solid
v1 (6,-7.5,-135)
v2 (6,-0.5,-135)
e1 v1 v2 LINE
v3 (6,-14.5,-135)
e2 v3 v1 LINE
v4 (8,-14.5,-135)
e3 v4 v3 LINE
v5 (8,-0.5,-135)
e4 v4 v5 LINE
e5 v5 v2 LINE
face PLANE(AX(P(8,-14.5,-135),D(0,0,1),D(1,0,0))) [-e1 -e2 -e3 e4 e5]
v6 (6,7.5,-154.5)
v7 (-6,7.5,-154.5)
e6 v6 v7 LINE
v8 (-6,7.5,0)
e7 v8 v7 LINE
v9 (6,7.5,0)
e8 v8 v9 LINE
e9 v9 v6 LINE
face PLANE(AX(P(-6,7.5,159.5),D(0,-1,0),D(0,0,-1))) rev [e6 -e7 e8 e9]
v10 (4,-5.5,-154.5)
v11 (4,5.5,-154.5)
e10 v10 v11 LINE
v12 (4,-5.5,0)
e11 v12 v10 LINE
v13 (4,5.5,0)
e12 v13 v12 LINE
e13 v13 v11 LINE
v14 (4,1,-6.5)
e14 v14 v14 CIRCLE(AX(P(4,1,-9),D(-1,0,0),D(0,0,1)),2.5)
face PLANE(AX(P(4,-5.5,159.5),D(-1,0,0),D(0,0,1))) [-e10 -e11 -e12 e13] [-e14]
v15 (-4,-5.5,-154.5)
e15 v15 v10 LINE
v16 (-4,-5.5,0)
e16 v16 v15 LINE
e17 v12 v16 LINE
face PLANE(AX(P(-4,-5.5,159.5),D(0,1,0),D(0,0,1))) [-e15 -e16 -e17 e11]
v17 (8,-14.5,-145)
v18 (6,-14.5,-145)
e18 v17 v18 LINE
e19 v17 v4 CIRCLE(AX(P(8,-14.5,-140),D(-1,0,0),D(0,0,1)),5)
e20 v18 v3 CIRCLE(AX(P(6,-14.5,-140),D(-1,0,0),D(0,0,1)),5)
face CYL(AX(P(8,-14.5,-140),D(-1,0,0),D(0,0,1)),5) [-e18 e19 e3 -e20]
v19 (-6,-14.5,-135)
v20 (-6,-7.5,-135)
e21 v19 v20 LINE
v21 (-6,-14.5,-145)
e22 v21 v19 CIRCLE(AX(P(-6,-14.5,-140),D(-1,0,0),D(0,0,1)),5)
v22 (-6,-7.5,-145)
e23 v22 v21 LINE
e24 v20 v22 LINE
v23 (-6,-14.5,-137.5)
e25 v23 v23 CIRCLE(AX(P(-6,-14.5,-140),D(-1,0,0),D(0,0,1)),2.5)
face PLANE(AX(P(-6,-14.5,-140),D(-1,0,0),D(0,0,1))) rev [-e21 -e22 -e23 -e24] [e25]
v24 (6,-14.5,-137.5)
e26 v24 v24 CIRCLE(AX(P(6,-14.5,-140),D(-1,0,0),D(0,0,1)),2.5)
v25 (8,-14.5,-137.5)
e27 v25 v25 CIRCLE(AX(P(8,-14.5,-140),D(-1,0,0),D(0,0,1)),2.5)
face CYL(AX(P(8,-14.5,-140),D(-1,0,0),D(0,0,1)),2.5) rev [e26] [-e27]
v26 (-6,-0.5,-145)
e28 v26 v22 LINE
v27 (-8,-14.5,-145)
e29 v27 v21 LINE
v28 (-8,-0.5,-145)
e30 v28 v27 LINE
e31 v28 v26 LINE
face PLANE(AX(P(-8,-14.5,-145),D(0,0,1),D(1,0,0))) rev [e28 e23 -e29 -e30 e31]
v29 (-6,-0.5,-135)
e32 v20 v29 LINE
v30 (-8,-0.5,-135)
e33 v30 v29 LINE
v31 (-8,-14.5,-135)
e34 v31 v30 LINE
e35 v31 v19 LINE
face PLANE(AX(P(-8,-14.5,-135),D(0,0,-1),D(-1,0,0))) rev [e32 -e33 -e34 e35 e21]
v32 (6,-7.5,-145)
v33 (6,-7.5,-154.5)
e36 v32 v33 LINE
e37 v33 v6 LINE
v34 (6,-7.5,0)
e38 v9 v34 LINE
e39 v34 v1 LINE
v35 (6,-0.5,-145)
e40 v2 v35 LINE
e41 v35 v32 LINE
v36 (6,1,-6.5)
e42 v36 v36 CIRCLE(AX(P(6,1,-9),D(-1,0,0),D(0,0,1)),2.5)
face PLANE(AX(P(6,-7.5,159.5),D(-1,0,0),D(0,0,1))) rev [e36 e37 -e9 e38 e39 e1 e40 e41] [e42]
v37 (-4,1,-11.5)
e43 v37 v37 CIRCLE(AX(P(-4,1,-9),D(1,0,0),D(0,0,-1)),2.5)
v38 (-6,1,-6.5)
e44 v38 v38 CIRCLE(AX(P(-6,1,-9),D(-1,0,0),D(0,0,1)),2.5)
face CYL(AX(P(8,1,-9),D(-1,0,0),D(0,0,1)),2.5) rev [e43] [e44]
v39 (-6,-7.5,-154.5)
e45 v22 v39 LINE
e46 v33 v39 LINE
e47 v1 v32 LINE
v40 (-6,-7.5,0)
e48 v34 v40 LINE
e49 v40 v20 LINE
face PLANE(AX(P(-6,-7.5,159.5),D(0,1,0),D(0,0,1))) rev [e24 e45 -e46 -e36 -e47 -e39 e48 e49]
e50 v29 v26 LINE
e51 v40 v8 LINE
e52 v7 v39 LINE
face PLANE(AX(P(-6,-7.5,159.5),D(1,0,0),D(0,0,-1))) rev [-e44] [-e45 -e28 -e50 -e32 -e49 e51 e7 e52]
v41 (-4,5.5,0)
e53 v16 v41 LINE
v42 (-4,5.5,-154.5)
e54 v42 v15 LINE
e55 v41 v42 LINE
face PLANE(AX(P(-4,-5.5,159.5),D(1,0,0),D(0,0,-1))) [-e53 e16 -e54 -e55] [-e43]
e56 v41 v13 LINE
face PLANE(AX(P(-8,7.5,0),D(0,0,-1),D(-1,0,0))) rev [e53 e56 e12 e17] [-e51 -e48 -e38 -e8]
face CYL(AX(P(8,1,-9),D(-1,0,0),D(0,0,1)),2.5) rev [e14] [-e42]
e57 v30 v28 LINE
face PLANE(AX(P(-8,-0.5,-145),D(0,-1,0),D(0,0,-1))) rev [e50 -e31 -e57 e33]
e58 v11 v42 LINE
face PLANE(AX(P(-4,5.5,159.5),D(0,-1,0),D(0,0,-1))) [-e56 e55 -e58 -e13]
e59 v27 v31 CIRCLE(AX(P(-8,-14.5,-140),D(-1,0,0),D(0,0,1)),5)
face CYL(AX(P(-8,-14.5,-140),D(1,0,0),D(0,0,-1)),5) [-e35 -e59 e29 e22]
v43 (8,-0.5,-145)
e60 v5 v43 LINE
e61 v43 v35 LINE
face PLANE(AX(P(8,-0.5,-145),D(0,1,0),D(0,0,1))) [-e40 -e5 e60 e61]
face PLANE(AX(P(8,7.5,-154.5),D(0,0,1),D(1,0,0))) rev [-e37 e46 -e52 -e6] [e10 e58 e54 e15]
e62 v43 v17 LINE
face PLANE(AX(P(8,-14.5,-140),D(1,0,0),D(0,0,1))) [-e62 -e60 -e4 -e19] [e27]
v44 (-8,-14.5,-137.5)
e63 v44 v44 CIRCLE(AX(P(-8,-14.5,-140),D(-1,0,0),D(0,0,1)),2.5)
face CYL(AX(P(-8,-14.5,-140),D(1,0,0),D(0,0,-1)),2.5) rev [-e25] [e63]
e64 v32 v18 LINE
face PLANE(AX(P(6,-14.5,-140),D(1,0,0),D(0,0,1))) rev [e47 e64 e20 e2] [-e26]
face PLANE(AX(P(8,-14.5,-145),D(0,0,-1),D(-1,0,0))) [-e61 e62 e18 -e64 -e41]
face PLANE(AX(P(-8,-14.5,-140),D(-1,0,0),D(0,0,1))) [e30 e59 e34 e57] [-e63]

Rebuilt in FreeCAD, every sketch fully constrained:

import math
import FreeCAD as App
import Part
import Sketcher
from FreeCAD import Vector


def add_polygon(sketch, points):
    """Adds a closed chain of lines whose ends are joined by coincident constraints."""
    first, n = sketch.GeometryCount, len(points)
    for a, b in zip(points, points[1:] + points[:1]):
        sketch.addGeometry(Part.LineSegment(App.Vector(*a, 0), App.Vector(*b, 0)), False)
    for i in range(n):
        sketch.addConstraint(Sketcher.Constraint("Coincident", first + i, 2, first + (i + 1) % n, 1))

doc = App.newDocument("Part")
params = doc.addObject("Spreadsheet::Sheet", "Params")
for row, (alias, value) in enumerate([
    ("sketch1_width", "12 mm"),
    ("sketch1_width2", "8 mm"),
    ("sketch1_height", "15 mm"),
    ("sketch1_height2", "11 mm"),
    ("pad1_length", "319 mm"),
    ("sketch2_diameter", "5 mm"),
    ("sketch2_radius", "5 mm"),
    ("sketch2_width", "14 mm"),
    ("pad2_length", "2 mm"),
    ("sketch3_diameter", "5 mm"),
    ("sketch3_radius", "5 mm"),
    ("sketch3_width", "14 mm"),
    ("pad3_length", "2 mm"),
    ("sketch4_height", "159.5 mm"),
    ("sketch5_diameter", "5 mm"),
    ("sketch6_width", "15 mm"),
    ("sketch6_height", "5 mm"),
], start=1):
    params.set(f"A{row}", alias)
    params.set(f"B{row}", "=" + value)
    params.setAlias(f"B{row}", alias)

body = doc.addObject("PartDesign::Body", "Body")

sketch1 = body.newObject("Sketcher::SketchObject", "Sketch")
sketch1.AttachmentSupport = (doc.getObject("XY_Plane"), [""])
sketch1.MapMode = "FlatFace"
add_polygon(sketch1, [(-6, 8), (-6, -8), (6, -8), (6, 8)])
add_polygon(sketch1, [(4, -6), (-4, -6), (-4, 6), (4, 6)])
sketch1.addConstraint([
    Sketcher.Constraint("Vertical", 0),
    Sketcher.Constraint("Horizontal", 1),
    Sketcher.Constraint("Vertical", 2),
    Sketcher.Constraint("Horizontal", 3),
    Sketcher.Constraint("Horizontal", 4),
    Sketcher.Constraint("Vertical", 5),
    Sketcher.Constraint("Horizontal", 6),
    Sketcher.Constraint("Vertical", 7),
    Sketcher.Constraint("Symmetric", 0, 2, 2, 2, -1, 1),
    Sketcher.Constraint("Symmetric", 4, 2, 6, 2, -1, 1),
    Sketcher.Constraint("DistanceX", 1, 1, 1, 2, 12.0),
    Sketcher.Constraint("DistanceX", 4, 2, 4, 1, 8.0),
    Sketcher.Constraint("DistanceY", 0, 2, 0, 1, 15.0),
    Sketcher.Constraint("DistanceY", 5, 1, 5, 2, 11.0),
])
sketch1.setExpression("Constraints[18]", "Params.sketch1_width")
sketch1.setExpression("Constraints[19]", "Params.sketch1_width2")
sketch1.setExpression("Constraints[20]", "Params.sketch1_height")
sketch1.setExpression("Constraints[21]", "Params.sketch1_height2")
pad1 = body.newObject("PartDesign::Pad", "Pad")
pad1.Profile = sketch1
pad1.setExpression("Length", "Params.pad1_length")
pad1.Midplane = True

sketch2 = body.newObject("Sketcher::SketchObject", "Sketch001")
sketch2.AttachmentSupport = (doc.getObject("YZ_Plane"), [""])
sketch2.MapMode = "FlatFace"
sketch2.AttachmentOffset = App.Placement(Vector(0, 0, 6), App.Rotation())
sketch2.addGeometry([
    Part.LineSegment(Vector(-0.5, 145, 0), Vector(-14.5, 145, 0)),
    Part.ArcOfCircle(Part.Circle(Vector(-14.5, 140, 0), Vector(0, 0, 1), 5), math.radians(90), math.radians(270)),
    Part.LineSegment(Vector(-14.5, 135, 0), Vector(-0.5, 135, 0)),
    Part.LineSegment(Vector(-0.5, 135, 0), Vector(-0.5, 145, 0)),
    Part.Circle(Vector(-14.5, 140, 0), Vector(0, 0, 1), 2.5),
], False)
sketch2.addConstraint([
    Sketcher.Constraint("Tangent", 0, 2, 1, 1),
    Sketcher.Constraint("Tangent", 1, 2, 2, 1),
    Sketcher.Constraint("Coincident", 2, 2, 3, 1),
    Sketcher.Constraint("Coincident", 3, 2, 0, 1),
    Sketcher.Constraint("Horizontal", 0),
    Sketcher.Constraint("Horizontal", 2),
    Sketcher.Constraint("Vertical", 3),
    Sketcher.Constraint("Coincident", 4, 3, 1, 3),
    Sketcher.Constraint("Diameter", 4, 5.0),
    Sketcher.Constraint("Radius", 1, 5.0),
    Sketcher.Constraint("DistanceX", 0, 2, 0, 1, 14.0),
    Sketcher.Constraint("DistanceY", -1, 1, 1, 3, 140.0),
    Sketcher.Constraint("DistanceX", 1, 3, -1, 1, 14.5),
])
sketch2.setExpression("Constraints[8]", "Params.sketch2_diameter")
sketch2.setExpression("Constraints[9]", "Params.sketch2_radius")
sketch2.setExpression("Constraints[10]", "Params.sketch2_width")
pad2 = body.newObject("PartDesign::Pad", "Pad001")
pad2.Profile = sketch2
pad2.setExpression("Length", "Params.pad2_length")
doc.recompute()

mirrored = body.newObject("PartDesign::Mirrored", "Mirrored")
mirrored.Originals = [pad2]
mirrored.MirrorPlane = (doc.getObject("YZ_Plane"), [""])
body.Tip = mirrored
doc.recompute()

mirrored2 = body.newObject("PartDesign::Mirrored", "Mirrored001")
mirrored2.Originals = [pad2]
mirrored2.MirrorPlane = (doc.getObject("XY_Plane"), [""])
body.Tip = mirrored2

sketch3 = body.newObject("Sketcher::SketchObject", "Sketch002")
sketch3.AttachmentSupport = (doc.getObject("YZ_Plane"), [""])
sketch3.MapMode = "FlatFace"
sketch3.AttachmentOffset = App.Placement(Vector(0, 0, -6), App.Rotation())
sketch3.addGeometry([
    Part.LineSegment(Vector(-0.5, -145, 0), Vector(-14.5, -145, 0)),
    Part.ArcOfCircle(Part.Circle(Vector(-14.5, -140, 0), Vector(0, 0, 1), 5), math.radians(90), math.radians(270)),
    Part.LineSegment(Vector(-14.5, -135, 0), Vector(-0.5, -135, 0)),
    Part.LineSegment(Vector(-0.5, -135, 0), Vector(-0.5, -145, 0)),
    Part.Circle(Vector(-14.5, -140, 0), Vector(0, 0, 1), 2.5),
], False)
sketch3.addConstraint([
    Sketcher.Constraint("Tangent", 0, 2, 1, 2),
    Sketcher.Constraint("Tangent", 1, 1, 2, 1),
    Sketcher.Constraint("Coincident", 2, 2, 3, 1),
    Sketcher.Constraint("Coincident", 3, 2, 0, 1),
    Sketcher.Constraint("Horizontal", 0),
    Sketcher.Constraint("Horizontal", 2),
    Sketcher.Constraint("Vertical", 3),
    Sketcher.Constraint("Coincident", 4, 3, 1, 3),
    Sketcher.Constraint("Diameter", 4, 5.0),
    Sketcher.Constraint("Radius", 1, 5.0),
    Sketcher.Constraint("DistanceX", 0, 2, 0, 1, 14.0),
    Sketcher.Constraint("DistanceY", 1, 3, -1, 1, 140.0),
    Sketcher.Constraint("DistanceX", 1, 3, -1, 1, 14.5),
])
sketch3.setExpression("Constraints[8]", "Params.sketch3_diameter")
sketch3.setExpression("Constraints[9]", "Params.sketch3_radius")
sketch3.setExpression("Constraints[10]", "Params.sketch3_width")
pad3 = body.newObject("PartDesign::Pad", "Pad002")
pad3.Profile = sketch3
pad3.setExpression("Length", "Params.pad3_length")
pad3.Reversed = True

sketch4 = body.newObject("Sketcher::SketchObject", "Sketch003")
sketch4.AttachmentSupport = (doc.getObject("YZ_Plane"), [""])
sketch4.MapMode = "FlatFace"
sketch4.AttachmentOffset = App.Placement(Vector(0, 0, 6), App.Rotation())
add_polygon(sketch4, [(8, 160), (-27, 160), (-27, 0), (8, 0)])
sketch4.addConstraint([
    Sketcher.Constraint("Horizontal", 0),
    Sketcher.Constraint("Vertical", 1),
    Sketcher.Constraint("Horizontal", 2),
    Sketcher.Constraint("Vertical", 3),
    Sketcher.Constraint("PointOnObject", 1, 2, -1),
    Sketcher.Constraint("DistanceY", 1, 2, 1, 1, 159.5),
    Sketcher.Constraint("DistanceX", -1, 1, 2, 2, 7.5),
    Sketcher.Constraint("DistanceX", 0, 2, 0, 1, 34.305734),
])
sketch4.setExpression("Constraints[9]", "Params.sketch4_height")
pocket1 = body.newObject("PartDesign::Pocket", "Pocket")
pocket1.Profile = sketch4
pocket1.Type = "ThroughAll"
pocket1.Midplane = True

sketch5 = body.newObject("Sketcher::SketchObject", "Sketch004")
sketch5.AttachmentSupport = (doc.getObject("YZ_Plane"), [""])
sketch5.MapMode = "FlatFace"
sketch5.AttachmentOffset = App.Placement(Vector(0, 0, -6), App.Rotation())
sketch5.addGeometry(Part.Circle(Vector(1, -9, 0), Vector(0, 0, 1), 2.5), False)
sketch5.addConstraint([
    Sketcher.Constraint("Diameter", 0, 5.0),
    Sketcher.Constraint("DistanceX", -1, 1, 0, 3, 1.0),
    Sketcher.Constraint("DistanceY", 0, 3, -1, 1, 9.0),
])
sketch5.setExpression("Constraints[0]", "Params.sketch5_diameter")
pocket2 = body.newObject("PartDesign::Pocket", "Pocket001")
pocket2.Profile = sketch5
pocket2.Type = "ThroughAll"
pocket2.Reversed = True

sketch6 = body.newObject("Sketcher::SketchObject", "Sketch005")
sketch6.AttachmentSupport = (doc.getObject("YZ_Plane"), [""])
sketch6.MapMode = "FlatFace"
sketch6.AttachmentOffset = App.Placement(Vector(0, 0, -6), App.Rotation())
add_polygon(sketch6, [(8, -160), (-8, -160), (-8, -154), (8, -154)])
sketch6.addConstraint([
    Sketcher.Constraint("Horizontal", 0),
    Sketcher.Constraint("Vertical", 1),
    Sketcher.Constraint("Horizontal", 2),
    Sketcher.Constraint("Vertical", 3),
    Sketcher.Constraint("DistanceX", 0, 2, 0, 1, 15.0),
    Sketcher.Constraint("DistanceY", 1, 1, 1, 2, 5.0),
    Sketcher.Constraint("DistanceX", 0, 2, -1, 1, 7.5),
    Sketcher.Constraint("DistanceY", 0, 2, -1, 1, 159.5),
])
sketch6.setExpression("Constraints[8]", "Params.sketch6_width")
sketch6.setExpression("Constraints[9]", "Params.sketch6_height")
pocket3 = body.newObject("PartDesign::Pocket", "Pocket002")
pocket3.Profile = sketch6
pocket3.Type = "ThroughAll"
pocket3.Midplane = True

doc.recompute()
